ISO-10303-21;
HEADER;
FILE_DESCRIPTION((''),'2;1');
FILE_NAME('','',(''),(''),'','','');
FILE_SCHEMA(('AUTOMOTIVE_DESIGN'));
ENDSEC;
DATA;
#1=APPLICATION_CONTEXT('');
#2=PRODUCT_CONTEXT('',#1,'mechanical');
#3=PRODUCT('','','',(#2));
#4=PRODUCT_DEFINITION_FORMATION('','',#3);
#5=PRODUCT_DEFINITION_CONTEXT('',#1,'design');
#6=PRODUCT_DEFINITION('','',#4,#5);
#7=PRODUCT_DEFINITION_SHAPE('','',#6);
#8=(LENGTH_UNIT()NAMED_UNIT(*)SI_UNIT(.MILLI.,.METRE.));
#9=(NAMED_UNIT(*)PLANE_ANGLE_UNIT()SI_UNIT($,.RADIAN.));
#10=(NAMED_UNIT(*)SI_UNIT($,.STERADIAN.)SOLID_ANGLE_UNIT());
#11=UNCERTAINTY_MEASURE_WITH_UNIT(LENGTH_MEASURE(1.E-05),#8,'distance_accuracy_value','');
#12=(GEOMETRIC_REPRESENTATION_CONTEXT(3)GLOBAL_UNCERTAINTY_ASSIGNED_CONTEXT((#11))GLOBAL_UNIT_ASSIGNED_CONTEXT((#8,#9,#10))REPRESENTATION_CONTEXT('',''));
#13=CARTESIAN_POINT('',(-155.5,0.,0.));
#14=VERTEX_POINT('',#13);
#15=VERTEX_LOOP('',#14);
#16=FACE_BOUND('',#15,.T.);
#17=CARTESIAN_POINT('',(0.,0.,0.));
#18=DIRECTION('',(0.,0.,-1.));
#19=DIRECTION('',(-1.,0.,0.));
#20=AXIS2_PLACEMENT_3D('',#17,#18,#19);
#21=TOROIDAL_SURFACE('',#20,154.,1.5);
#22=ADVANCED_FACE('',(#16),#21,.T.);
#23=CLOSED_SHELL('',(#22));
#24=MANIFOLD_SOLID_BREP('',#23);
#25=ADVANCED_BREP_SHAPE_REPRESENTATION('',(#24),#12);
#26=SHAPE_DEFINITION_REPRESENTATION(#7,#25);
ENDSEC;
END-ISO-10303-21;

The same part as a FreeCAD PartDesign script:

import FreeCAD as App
import Part
import Sketcher

V = App.Vector
Q = App.Units.Quantity

doc = App.newDocument("Part")
body = doc.addObject("PartDesign::Body", "Body")

sketch1 = body.newObject("Sketcher::SketchObject", "Sketch")
sketch1.AttachmentSupport = (doc.getObject("XZ_Plane"), [""])
sketch1.MapMode = "FlatFace"
sketch1.addGeometry(Part.Circle(V(154, 0, 0), V(0, 0, 1), 1.5), False)
sketch1.addConstraint([
    Sketcher.Constraint("PointOnObject", 0, 3, -1),
    Sketcher.Constraint("Diameter", 0, Q("3 mm")),
    Sketcher.Constraint("DistanceX", -1, 1, 0, 3, Q("154 mm")),
])

sketch2 = body.newObject("Sketcher::SketchObject", "Sketch001")
sketch2.AttachmentSupport = (doc.getObject("XY_Plane"), [""])
sketch2.MapMode = "FlatFace"
sketch2.addGeometry(Part.Circle(V(0, 0, 0), V(0, 0, 1), 154), False)
sketch2.addConstraint([
    Sketcher.Constraint("Coincident", 0, 3, -1, 1),
    Sketcher.Constraint("Diameter", 0, Q("308 mm")),
])
doc.recompute()

additivepipe = body.newObject("PartDesign::AdditivePipe", "AdditivePipe")
additivepipe.Profile = sketch1
additivepipe.Spine = (sketch2, ["Edge1"])

doc.recompute()
